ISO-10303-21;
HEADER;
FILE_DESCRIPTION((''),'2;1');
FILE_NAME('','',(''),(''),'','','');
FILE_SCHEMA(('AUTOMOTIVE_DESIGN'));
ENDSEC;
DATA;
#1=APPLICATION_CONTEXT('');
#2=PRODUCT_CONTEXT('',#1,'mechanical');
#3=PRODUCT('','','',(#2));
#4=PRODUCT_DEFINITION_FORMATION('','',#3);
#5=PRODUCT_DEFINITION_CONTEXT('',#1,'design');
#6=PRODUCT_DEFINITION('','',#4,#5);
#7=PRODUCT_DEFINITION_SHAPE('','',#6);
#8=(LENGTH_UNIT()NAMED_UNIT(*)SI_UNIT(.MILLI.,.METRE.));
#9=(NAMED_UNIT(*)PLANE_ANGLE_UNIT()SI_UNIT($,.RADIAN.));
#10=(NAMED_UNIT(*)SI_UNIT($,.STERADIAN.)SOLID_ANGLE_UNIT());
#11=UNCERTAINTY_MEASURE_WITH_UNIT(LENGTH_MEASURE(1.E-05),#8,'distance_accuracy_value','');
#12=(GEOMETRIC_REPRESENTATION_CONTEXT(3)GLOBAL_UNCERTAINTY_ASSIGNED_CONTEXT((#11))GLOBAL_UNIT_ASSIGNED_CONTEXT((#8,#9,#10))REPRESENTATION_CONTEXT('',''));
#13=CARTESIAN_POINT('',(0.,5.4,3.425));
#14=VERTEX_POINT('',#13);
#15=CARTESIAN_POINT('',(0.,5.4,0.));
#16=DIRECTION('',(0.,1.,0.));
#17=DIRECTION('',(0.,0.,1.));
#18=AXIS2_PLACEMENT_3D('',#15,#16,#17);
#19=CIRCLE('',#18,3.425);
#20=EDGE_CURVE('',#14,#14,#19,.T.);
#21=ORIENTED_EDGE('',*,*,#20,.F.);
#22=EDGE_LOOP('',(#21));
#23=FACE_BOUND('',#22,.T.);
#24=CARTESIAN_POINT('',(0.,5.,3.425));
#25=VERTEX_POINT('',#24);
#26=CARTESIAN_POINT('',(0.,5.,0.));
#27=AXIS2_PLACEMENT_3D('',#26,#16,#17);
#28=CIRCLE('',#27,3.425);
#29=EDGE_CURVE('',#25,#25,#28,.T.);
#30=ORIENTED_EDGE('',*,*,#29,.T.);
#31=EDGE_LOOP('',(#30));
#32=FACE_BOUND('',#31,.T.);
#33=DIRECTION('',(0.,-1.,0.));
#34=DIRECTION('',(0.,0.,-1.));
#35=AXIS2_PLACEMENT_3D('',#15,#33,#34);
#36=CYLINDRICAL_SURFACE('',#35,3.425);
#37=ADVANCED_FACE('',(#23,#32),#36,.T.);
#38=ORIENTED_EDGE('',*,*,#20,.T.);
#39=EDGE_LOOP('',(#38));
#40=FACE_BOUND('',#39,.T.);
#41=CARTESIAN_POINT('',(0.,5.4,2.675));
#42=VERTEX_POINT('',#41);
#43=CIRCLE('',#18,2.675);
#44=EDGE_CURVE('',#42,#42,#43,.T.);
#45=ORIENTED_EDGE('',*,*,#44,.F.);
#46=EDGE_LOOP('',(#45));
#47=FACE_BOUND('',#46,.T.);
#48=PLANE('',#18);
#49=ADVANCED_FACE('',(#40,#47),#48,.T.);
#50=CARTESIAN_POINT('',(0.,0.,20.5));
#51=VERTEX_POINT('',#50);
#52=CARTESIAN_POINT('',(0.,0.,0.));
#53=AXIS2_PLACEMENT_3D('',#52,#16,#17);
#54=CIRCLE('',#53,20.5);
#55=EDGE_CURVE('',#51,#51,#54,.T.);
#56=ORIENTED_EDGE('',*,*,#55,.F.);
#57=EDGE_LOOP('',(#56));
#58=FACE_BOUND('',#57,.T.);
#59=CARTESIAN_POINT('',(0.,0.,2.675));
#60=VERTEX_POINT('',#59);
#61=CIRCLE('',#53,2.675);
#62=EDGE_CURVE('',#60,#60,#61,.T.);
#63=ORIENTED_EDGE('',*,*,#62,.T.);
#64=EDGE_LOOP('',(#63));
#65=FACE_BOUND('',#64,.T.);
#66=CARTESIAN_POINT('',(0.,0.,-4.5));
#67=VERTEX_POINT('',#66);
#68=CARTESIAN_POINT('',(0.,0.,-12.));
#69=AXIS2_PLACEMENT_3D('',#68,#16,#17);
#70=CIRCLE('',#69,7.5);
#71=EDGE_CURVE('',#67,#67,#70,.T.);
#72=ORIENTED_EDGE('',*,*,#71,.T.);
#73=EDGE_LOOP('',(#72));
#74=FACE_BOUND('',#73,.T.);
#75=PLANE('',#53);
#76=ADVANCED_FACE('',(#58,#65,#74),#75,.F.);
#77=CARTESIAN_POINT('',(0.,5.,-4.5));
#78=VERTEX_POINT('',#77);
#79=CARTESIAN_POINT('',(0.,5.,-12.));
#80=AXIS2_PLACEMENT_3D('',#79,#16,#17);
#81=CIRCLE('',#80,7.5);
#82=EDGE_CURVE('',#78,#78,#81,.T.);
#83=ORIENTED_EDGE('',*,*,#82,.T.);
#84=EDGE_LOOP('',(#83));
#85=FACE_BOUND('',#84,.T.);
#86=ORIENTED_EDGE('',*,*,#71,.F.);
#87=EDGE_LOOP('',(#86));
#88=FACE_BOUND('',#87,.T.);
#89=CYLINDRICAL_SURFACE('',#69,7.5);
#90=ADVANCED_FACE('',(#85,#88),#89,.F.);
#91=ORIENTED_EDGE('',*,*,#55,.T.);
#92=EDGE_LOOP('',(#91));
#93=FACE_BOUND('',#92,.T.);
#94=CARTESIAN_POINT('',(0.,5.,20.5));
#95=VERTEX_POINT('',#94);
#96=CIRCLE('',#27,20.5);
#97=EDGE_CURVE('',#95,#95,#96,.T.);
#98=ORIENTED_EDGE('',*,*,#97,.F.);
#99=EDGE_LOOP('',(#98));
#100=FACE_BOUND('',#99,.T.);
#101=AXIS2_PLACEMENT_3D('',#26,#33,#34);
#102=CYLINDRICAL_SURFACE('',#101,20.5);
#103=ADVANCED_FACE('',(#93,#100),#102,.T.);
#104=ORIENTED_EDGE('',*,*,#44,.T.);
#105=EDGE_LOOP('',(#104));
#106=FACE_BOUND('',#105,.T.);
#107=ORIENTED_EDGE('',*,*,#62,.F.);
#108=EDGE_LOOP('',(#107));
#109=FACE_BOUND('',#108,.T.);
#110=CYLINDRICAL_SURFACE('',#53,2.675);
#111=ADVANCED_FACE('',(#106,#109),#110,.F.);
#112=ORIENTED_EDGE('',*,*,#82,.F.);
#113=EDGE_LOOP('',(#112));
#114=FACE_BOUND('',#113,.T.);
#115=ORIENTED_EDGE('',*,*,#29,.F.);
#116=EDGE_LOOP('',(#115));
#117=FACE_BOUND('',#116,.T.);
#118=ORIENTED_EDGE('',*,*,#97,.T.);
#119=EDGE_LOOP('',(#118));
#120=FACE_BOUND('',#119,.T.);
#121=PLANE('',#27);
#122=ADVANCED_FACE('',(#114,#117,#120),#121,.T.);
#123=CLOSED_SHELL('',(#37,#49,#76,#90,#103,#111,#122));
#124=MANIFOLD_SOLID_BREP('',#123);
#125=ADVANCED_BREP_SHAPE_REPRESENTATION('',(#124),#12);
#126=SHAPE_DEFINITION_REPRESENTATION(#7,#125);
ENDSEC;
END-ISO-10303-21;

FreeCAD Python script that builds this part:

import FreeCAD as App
import Part
import Sketcher
from FreeCAD import Vector

doc = App.newDocument("Part")
body = doc.addObject("PartDesign::Body", "Body")

# Sketch on XZ plane
sketch1 = body.newObject("Sketcher::SketchObject", "Sketch")
sketch1.AttachmentSupport = (doc.getObject("XZ_Plane"), [""])
sketch1.MapMode = "FlatFace"
sketch1.addGeometry(Part.Circle(Vector(0, 0, 0), Vector(0, 0, 1), 20), False)
sketch1.addConstraint(Sketcher.Constraint("Coincident", 0, 3, -1, 1))
sketch1.addConstraint(Sketcher.Constraint("Diameter", 0, 41.0))
pad1 = body.newObject("PartDesign::Pad", "Pad")
pad1.Profile = sketch1
pad1.Length = 5
pad1.Reversed = True

# Sketch on XZ plane
sketch2 = body.newObject("Sketcher::SketchObject", "Sketch001")
sketch2.AttachmentSupport = (doc.getObject("XZ_Plane"), [""])
sketch2.MapMode = "FlatFace"
sketch2.AttachmentOffset = App.Placement(Vector(0, 0, -5), App.Rotation())
sketch2.addGeometry(Part.Circle(Vector(0, 0, 0), Vector(0, 0, 1), 2.7), False)
sketch2.addConstraint(Sketcher.Constraint("Coincident", 0, 3, -1, 1))
sketch2.addConstraint(Sketcher.Constraint("Diameter", 0, 5.35))
pocket1 = body.newObject("PartDesign::Pocket", "Pocket")
pocket1.Profile = sketch2
pocket1.Length = 5
pocket1.Reversed = True

# Sketch on XZ plane
sketch3 = body.newObject("Sketcher::SketchObject", "Sketch002")
sketch3.AttachmentSupport = (doc.getObject("XZ_Plane"), [""])
sketch3.MapMode = "FlatFace"
sketch3.AttachmentOffset = App.Placement(Vector(0, 0, -5.4), App.Rotation())
sketch3.addGeometry(Part.Circle(Vector(0, 0, 0), Vector(0, 0, 1), 3.4), False)
sketch3.addGeometry(Part.Circle(Vector(0, 0, 0), Vector(0, 0, 1), 2.7), False)
sketch3.addConstraint(Sketcher.Constraint("Coincident", 0, 3, -1, 1))
sketch3.addConstraint(Sketcher.Constraint("Coincident", 1, 3, -1, 1))
sketch3.addConstraint(Sketcher.Constraint("Diameter", 0, 6.85))
sketch3.addConstraint(Sketcher.Constraint("Diameter", 1, 5.35))
pad2 = body.newObject("PartDesign::Pad", "Pad001")
pad2.Profile = sketch3
pad2.Length = 0.4

# Sketch on XZ plane
sketch4 = body.newObject("Sketcher::SketchObject", "Sketch003")
sketch4.AttachmentSupport = (doc.getObject("XZ_Plane"), [""])
sketch4.MapMode = "FlatFace"
sketch4.AttachmentOffset = App.Placement(Vector(0, 0, -5), App.Rotation())
sketch4.addGeometry(Part.Circle(Vector(0, -12, 0), Vector(0, 0, 1), 8), False)
sketch4.addConstraint(Sketcher.Constraint("PointOnObject", 0, 3, -2))
sketch4.addConstraint(Sketcher.Constraint("Diameter", 0, 15.0))
sketch4.addConstraint(Sketcher.Constraint("DistanceY", 0, 3, -1, 1, 12.0))
pocket2 = body.newObject("PartDesign::Pocket", "Pocket001")
pocket2.Profile = sketch4
pocket2.Length = 5
pocket2.Reversed = True

doc.recompute()
